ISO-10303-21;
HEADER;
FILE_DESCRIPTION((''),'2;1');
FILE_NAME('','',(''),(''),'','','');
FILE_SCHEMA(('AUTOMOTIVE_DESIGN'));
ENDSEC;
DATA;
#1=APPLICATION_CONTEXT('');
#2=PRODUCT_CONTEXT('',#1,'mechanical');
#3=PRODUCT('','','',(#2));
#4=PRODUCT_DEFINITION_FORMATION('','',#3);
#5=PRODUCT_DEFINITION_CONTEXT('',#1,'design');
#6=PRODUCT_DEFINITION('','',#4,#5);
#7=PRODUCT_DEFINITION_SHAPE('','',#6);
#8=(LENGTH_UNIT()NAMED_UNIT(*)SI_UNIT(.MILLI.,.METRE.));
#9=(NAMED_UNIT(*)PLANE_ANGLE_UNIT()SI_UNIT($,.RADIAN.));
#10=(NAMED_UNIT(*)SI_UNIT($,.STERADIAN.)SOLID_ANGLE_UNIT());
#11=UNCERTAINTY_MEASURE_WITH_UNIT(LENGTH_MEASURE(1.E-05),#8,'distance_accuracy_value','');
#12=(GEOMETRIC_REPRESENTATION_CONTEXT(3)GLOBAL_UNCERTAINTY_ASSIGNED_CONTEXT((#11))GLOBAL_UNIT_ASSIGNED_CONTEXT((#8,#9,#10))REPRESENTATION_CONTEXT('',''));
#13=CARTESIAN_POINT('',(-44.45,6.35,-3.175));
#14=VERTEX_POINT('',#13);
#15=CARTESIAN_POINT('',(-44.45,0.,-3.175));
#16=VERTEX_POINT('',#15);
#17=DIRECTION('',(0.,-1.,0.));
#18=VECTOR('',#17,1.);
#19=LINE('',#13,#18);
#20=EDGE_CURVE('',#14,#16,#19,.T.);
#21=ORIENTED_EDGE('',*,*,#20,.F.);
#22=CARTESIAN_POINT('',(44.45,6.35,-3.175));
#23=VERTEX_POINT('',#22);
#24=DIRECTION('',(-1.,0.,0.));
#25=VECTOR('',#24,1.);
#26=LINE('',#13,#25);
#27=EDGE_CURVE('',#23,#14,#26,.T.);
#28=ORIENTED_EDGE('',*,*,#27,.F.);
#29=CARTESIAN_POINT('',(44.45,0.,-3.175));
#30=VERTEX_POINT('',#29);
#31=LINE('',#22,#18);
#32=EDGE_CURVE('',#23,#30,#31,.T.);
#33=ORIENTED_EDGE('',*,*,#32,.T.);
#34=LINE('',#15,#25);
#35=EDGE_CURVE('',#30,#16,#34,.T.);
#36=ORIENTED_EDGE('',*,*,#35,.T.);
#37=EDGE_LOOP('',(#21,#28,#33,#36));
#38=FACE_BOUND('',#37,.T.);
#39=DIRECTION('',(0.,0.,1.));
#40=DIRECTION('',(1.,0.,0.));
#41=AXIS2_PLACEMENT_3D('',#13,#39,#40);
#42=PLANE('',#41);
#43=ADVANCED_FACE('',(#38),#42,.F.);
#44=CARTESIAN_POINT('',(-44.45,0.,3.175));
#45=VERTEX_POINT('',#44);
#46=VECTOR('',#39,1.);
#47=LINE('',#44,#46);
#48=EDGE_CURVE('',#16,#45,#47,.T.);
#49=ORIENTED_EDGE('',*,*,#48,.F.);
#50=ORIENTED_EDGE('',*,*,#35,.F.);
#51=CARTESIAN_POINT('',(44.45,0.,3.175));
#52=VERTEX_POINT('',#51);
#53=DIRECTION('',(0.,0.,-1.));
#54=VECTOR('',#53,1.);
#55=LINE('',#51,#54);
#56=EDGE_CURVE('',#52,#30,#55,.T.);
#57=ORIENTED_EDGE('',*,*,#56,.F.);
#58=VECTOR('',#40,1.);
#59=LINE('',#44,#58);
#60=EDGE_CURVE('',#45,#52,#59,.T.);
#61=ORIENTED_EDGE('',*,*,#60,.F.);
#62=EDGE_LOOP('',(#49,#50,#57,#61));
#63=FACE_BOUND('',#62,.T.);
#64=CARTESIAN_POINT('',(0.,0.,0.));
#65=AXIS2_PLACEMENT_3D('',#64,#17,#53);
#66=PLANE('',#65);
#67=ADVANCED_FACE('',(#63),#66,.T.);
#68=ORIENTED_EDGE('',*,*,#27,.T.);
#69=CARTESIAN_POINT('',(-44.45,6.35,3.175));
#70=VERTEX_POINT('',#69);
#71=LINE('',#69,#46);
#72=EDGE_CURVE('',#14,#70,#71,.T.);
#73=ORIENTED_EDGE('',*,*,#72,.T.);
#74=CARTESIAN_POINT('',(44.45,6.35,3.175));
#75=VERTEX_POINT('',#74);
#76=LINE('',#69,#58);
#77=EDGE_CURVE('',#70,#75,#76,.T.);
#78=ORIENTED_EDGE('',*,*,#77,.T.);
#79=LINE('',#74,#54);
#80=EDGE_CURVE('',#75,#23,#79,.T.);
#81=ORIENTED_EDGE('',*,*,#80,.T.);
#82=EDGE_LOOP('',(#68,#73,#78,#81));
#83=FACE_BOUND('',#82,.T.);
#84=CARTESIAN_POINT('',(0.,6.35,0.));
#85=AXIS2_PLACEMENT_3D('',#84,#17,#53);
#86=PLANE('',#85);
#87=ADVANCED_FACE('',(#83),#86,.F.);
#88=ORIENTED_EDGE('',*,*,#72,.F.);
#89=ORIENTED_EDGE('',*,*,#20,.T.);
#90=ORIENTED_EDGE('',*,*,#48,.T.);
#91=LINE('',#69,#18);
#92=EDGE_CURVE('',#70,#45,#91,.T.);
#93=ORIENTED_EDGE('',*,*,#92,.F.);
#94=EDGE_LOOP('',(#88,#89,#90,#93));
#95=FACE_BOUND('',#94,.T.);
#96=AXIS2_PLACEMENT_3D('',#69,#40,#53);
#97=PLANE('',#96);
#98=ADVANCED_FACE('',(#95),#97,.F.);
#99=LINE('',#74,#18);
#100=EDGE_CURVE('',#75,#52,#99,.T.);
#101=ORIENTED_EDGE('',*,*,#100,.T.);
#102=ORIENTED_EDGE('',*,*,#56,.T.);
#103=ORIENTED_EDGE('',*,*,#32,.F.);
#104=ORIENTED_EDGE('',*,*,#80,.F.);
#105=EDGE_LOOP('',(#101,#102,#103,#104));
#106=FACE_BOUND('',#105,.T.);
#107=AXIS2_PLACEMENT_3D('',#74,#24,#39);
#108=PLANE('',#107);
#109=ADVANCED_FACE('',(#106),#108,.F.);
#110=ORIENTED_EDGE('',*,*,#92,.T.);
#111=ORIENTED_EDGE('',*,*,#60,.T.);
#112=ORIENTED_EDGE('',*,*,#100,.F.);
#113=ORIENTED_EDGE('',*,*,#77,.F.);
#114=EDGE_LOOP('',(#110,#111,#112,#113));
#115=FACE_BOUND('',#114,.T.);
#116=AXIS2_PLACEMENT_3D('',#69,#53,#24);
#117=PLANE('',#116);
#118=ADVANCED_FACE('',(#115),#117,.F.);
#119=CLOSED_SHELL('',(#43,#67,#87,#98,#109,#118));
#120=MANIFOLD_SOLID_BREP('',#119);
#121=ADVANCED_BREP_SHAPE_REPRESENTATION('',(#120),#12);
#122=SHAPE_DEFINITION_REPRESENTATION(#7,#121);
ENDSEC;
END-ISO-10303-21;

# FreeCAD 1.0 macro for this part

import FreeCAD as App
import Part
import Sketcher

V = App.Vector
Q = App.Units.Quantity

doc = App.newDocument("Part")
body = doc.addObject("PartDesign::Body", "Body")

# Sketch on XZ plane
sketch1 = body.newObject("Sketcher::SketchObject", "Sketch")
sketch1.AttachmentSupport = (doc.getObject("XZ_Plane"), [""])
sketch1.MapMode = "FlatFace"
sketch1.addGeometry([
    Part.LineSegment(V(-44, -3, 0), V(-44, 3, 0)),
    Part.LineSegment(V(-44, 3, 0), V(44, 3, 0)),
    Part.LineSegment(V(44, 3, 0), V(44, -3, 0)),
    Part.LineSegment(V(44, -3, 0), V(-44, -3, 0)),
], False)
sketch1.addConstraint([
    Sketcher.Constraint("Coincident", 0, 2, 1, 1),
    Sketcher.Constraint("Coincident", 1, 2, 2, 1),
    Sketcher.Constraint("Coincident", 2, 2, 3, 1),
    Sketcher.Constraint("Coincident", 3, 2, 0, 1),
    Sketcher.Constraint("Vertical", 0),
    Sketcher.Constraint("Horizontal", 1),
    Sketcher.Constraint("Vertical", 2),
    Sketcher.Constraint("Horizontal", 3),
    Sketcher.Constraint("Symmetric", 0, 2, 2, 2, -1, 1),
    Sketcher.Constraint("DistanceX", 1, 1, 1, 2, Q("3.5 in")),
    Sketcher.Constraint("DistanceY", 0, 1, 0, 2, Q("0.25 in")),
])
pad1 = body.newObject("PartDesign::Pad", "Pad")
pad1.Profile = sketch1
pad1.Length = Q("0.25 in")
pad1.Reversed = True

doc.recompute()
